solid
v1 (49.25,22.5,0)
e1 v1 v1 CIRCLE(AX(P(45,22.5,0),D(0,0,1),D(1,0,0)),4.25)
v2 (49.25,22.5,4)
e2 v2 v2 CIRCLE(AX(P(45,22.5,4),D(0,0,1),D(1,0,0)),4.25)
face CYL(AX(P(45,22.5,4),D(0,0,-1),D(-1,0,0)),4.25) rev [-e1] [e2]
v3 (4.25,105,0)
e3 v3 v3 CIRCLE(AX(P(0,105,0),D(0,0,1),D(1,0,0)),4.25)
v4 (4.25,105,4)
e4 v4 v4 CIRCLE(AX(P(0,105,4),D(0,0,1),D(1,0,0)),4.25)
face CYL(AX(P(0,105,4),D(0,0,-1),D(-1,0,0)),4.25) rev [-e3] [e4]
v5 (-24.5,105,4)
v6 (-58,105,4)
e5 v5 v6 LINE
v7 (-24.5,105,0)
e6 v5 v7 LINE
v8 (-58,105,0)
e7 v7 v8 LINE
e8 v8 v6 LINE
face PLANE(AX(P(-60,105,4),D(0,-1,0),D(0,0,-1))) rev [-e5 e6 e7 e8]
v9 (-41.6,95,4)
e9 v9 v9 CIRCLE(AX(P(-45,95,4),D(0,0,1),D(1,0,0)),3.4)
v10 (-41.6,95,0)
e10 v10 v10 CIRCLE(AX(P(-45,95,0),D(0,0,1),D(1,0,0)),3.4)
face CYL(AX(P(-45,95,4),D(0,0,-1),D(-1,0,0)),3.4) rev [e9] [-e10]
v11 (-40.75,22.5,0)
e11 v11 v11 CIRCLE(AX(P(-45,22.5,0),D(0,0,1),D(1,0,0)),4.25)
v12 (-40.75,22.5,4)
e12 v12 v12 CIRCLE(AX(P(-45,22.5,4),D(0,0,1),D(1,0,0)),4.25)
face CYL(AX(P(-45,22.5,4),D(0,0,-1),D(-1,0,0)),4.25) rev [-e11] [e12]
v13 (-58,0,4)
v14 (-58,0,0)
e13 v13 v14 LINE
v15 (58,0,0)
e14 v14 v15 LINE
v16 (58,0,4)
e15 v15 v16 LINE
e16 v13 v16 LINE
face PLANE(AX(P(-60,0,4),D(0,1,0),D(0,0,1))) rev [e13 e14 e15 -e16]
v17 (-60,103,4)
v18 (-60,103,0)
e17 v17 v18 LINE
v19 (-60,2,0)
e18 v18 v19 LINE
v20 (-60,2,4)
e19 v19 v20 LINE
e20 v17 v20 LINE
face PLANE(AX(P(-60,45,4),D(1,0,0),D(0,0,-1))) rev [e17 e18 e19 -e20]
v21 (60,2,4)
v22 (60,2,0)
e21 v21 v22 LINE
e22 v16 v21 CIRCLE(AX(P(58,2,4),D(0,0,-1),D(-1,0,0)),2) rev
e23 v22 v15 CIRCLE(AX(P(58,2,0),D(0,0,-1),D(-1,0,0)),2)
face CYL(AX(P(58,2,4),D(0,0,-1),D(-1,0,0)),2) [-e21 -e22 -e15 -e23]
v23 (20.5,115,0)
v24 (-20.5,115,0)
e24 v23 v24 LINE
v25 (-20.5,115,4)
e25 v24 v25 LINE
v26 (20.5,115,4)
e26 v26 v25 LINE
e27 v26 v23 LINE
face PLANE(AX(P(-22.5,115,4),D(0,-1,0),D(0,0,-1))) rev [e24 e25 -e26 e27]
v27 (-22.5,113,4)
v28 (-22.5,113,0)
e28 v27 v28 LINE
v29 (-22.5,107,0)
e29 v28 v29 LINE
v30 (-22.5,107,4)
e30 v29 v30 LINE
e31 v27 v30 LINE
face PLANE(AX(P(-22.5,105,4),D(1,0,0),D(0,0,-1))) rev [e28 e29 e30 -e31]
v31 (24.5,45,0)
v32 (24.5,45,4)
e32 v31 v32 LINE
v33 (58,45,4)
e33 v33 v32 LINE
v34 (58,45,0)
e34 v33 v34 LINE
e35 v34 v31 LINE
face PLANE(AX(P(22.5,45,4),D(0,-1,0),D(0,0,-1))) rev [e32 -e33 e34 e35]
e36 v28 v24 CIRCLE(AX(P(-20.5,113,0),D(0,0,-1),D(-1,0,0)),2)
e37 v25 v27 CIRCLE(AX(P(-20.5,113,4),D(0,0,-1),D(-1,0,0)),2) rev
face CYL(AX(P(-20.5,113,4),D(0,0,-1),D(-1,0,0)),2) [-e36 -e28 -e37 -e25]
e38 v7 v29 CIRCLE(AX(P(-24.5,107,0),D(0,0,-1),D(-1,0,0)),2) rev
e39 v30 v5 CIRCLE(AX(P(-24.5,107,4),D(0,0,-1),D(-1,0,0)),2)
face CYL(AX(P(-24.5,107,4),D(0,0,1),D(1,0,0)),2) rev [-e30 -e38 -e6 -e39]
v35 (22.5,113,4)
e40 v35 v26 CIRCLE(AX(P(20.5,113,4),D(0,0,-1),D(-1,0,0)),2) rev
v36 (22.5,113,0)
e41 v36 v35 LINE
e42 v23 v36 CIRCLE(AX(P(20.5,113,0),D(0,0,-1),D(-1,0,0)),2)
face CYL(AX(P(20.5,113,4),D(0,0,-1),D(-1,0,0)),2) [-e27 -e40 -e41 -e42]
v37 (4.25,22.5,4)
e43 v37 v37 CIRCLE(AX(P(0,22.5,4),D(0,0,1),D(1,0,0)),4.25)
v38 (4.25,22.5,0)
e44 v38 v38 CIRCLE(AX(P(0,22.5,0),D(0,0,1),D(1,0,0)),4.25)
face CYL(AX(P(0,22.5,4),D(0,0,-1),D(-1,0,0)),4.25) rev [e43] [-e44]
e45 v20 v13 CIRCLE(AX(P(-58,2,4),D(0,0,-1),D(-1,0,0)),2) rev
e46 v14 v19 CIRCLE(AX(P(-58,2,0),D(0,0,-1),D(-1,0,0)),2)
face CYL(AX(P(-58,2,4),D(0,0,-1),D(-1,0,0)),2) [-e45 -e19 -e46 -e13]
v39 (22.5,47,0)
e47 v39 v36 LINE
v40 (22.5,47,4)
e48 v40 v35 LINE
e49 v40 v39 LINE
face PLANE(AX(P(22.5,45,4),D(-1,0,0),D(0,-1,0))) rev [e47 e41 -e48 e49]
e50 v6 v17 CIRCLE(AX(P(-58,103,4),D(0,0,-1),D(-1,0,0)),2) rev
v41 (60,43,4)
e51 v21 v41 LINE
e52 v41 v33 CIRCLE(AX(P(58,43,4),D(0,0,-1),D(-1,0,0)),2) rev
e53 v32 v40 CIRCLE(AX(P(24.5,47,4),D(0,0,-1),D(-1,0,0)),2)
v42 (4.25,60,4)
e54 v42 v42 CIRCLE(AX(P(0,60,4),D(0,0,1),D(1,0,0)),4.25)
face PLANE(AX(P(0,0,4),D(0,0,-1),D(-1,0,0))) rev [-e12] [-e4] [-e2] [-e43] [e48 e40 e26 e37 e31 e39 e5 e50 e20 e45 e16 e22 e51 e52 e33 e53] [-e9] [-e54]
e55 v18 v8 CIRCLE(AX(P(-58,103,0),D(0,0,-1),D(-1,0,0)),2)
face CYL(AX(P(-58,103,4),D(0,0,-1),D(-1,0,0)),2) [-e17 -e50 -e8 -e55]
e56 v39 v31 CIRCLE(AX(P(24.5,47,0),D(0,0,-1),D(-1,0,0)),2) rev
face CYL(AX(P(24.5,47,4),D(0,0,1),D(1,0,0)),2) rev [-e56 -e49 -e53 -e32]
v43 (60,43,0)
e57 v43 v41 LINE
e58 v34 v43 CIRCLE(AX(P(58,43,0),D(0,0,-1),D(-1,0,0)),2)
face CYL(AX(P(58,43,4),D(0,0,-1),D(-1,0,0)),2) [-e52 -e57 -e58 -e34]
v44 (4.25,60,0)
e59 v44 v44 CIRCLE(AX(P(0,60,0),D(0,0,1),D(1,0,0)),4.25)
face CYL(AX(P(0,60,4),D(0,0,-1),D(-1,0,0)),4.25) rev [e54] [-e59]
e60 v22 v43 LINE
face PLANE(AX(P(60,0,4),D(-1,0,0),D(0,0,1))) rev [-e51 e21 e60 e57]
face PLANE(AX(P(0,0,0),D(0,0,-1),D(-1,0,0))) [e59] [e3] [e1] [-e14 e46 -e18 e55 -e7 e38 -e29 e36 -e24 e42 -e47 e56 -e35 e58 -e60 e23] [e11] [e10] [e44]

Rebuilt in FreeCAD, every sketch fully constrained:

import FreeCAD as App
import Part
import Sketcher
from FreeCAD import Vector


def edges_at(feature, points):
    """Names of the edges that pass closest to the given points."""
    edges = feature.Shape.Edges
    near = lambda p: min(range(len(edges)), key=lambda i: edges[i].distToShape(Part.Vertex(*p))[0])
    return sorted({f"Edge{near(p) + 1}" for p in points})


def add_polygon(sketch, points):
    """Adds a closed chain of lines whose ends are joined by coincident constraints."""
    first, n = sketch.GeometryCount, len(points)
    for a, b in zip(points, points[1:] + points[:1]):
        sketch.addGeometry(Part.LineSegment(App.Vector(*a, 0), App.Vector(*b, 0)), False)
    for i in range(n):
        sketch.addConstraint(Sketcher.Constraint("Coincident", first + i, 2, first + (i + 1) % n, 1))

doc = App.newDocument("Part")
body = doc.addObject("PartDesign::Body", "Body")

sketch1 = doc.addObject("Sketcher::SketchObject", "Sketch")
body.addObject(sketch1)
sketch1.AttachmentSupport = (doc.XY_Plane, [""])
sketch1.MapMode = "FlatFace"
add_polygon(sketch1, [(-60, 0), (60, 0), (60, 45), (22.5, 45), (22.5, 115), (-22.5, 115), (-22.5, 105), (-60, 105)])
sketch1.addGeometry(Part.Circle(Vector(-45, 22.5, 0), Vector(0, 0, 1), 4.25), False)
sketch1.addGeometry(Part.Circle(Vector(0, 22.5, 0), Vector(0, 0, 1), 4.25), False)
sketch1.addGeometry(Part.Circle(Vector(0, 60, 0), Vector(0, 0, 1), 4.25), False)
sketch1.addGeometry(Part.Circle(Vector(45, 22.5, 0), Vector(0, 0, 1), 4.25), False)
sketch1.addGeometry(Part.Circle(Vector(-45, 95, 0), Vector(0, 0, 1), 3.4), False)
sketch1.addGeometry(Part.Circle(Vector(0, 105, 0), Vector(0, 0, 1), 4.25), False)
sketch1.addConstraint([
    Sketcher.Constraint("Horizontal", 0),
    Sketcher.Constraint("Vertical", 1),
    Sketcher.Constraint("Horizontal", 2),
    Sketcher.Constraint("Vertical", 3),
    Sketcher.Constraint("Horizontal", 4),
    Sketcher.Constraint("Vertical", 5),
    Sketcher.Constraint("Horizontal", 6),
    Sketcher.Constraint("Vertical", 7),
    Sketcher.Constraint("Equal", 8, 9),
    Sketcher.Constraint("Equal", 9, 10),
    Sketcher.Constraint("Equal", 10, 11),
    Sketcher.Constraint("Equal", 11, 13),
    Sketcher.Constraint("Symmetric", 0, 2, 7, 2, -1, 1),
    Sketcher.Constraint("Symmetric", 8, 3, 11, 3, -2),
    Sketcher.Constraint("PointOnObject", 9, 3, -2),
    Sketcher.Constraint("PointOnObject", 10, 3, -2),
    Sketcher.Constraint("PointOnObject", 13, 3, -2),
    Sketcher.Constraint("Horizontal", 8, 3, 9, 3),
    Sketcher.Constraint("Horizontal", 13, 3, 5, 2),
    Sketcher.Constraint("Vertical", 8, 3, 12, 3),
    Sketcher.Constraint("Equal", 2, 6),
    Sketcher.Constraint("Equal", 4, 1),
    Sketcher.Constraint("Diameter", 8, 8.5),
    Sketcher.Constraint("Diameter", 12, 6.8),
    Sketcher.Constraint("DistanceX", 0, 1, 0, 2, 120.0),
    Sketcher.Constraint("DistanceX", 4, 2, 4, 1, 45.0),
    Sketcher.Constraint("DistanceY", 3, 1, 3, 2, 70.0),
    Sketcher.Constraint("DistanceY", 5, 2, 5, 1, 10.0),
    Sketcher.Constraint("DistanceX", 8, 3, -1, 1, 45.0),
    Sketcher.Constraint("DistanceY", -1, 1, 10, 3, 60.0),
    Sketcher.Constraint("DistanceY", -1, 1, 12, 3, 95.0),
    Sketcher.Constraint("DistanceY", -1, 1, 8, 3, 22.5),
])
pad1 = doc.addObject("PartDesign::Pad", "Pad")
body.addObject(pad1)
pad1.Profile = sketch1
pad1.Length = 4
doc.recompute()

fillet = doc.addObject("PartDesign::Fillet", "Fillet")
body.addObject(fillet)
fillet.Base = (pad1, edges_at(pad1, [
    (-60, 105, 2),
    (-22.5, 105, 2),
    (-22.5, 115, 2),
    (22.5, 115, 2),
    (22.5, 45, 2),
    (60, 45, 2),
    (60, 0, 2),
    (-60, 0, 2),
]))
fillet.Radius = 2

doc.recompute()
